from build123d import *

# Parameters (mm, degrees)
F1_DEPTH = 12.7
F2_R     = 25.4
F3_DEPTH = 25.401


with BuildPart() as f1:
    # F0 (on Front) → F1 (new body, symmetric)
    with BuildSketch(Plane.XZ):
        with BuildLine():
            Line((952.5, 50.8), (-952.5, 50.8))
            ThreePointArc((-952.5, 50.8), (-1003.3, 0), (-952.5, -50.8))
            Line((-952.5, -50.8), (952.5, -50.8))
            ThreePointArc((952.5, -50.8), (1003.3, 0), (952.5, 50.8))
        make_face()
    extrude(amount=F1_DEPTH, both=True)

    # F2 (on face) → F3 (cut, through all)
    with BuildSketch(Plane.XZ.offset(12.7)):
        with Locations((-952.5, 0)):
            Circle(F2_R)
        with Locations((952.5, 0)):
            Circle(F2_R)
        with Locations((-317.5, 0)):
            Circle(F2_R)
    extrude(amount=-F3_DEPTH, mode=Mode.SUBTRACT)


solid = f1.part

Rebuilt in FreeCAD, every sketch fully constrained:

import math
import FreeCAD as App
import Part
import Sketcher
Q = App.Units.Quantity

doc = App.newDocument("Part")
body = doc.addObject("PartDesign::Body", "Body")

sketch1 = body.newObject("Sketcher::SketchObject", "Sketch")
sketch1.AttachmentSupport = (doc.getObject("XZ_Plane"), [""])
sketch1.MapMode = "FlatFace"
sketch1.addGeometry(Part.LineSegment(App.Vector(952.5, 50.8, 0), App.Vector(-952.5, 50.8, 0)), False)
sketch1.addGeometry(Part.ArcOfCircle(Part.Circle(App.Vector(-952.5, 0, 0), App.Vector(0, 0, 1), 50.8), math.radians(90), math.radians(270)), False)
sketch1.addGeometry(Part.LineSegment(App.Vector(-952.5, -50.8, 0), App.Vector(952.5, -50.8, 0)), False)
sketch1.addGeometry(Part.ArcOfCircle(Part.Circle(App.Vector(952.5, 0, 0), App.Vector(0, 0, 1), 50.8), math.radians(-90), math.radians(90)), False)
sketch1.addConstraint(Sketcher.Constraint("Tangent", 0, 2, 1, 1))
sketch1.addConstraint(Sketcher.Constraint("Tangent", 1, 2, 2, 1))
sketch1.addConstraint(Sketcher.Constraint("Tangent", 2, 2, 3, 1))
sketch1.addConstraint(Sketcher.Constraint("Tangent", 3, 2, 0, 1))
sketch1.addConstraint(Sketcher.Constraint("Horizontal", 0))
sketch1.addConstraint(Sketcher.Constraint("Horizontal", 2))
sketch1.addConstraint(Sketcher.Constraint("Symmetric", 1, 3, 3, 3, -1, 1))
sketch1.addConstraint(Sketcher.Constraint("Radius", 1, Q("2 in")))
sketch1.addConstraint(Sketcher.Constraint("DistanceX", 0, 2, 0, 1, Q("75 in")))
pad1 = body.newObject("PartDesign::Pad", "Pad")
pad1.Profile = sketch1
pad1.Length = Q("1 in")
pad1.Midplane = True

sketch2 = body.newObject("Sketcher::SketchObject", "Sketch001")
sketch2.AttachmentSupport = (doc.getObject("XZ_Plane"), [""])
sketch2.MapMode = "FlatFace"
sketch2.AttachmentOffset = App.Placement(App.Vector(0, 0, 0.5 * 25.4), App.Rotation())
sketch2.addGeometry(Part.Circle(App.Vector(-952.5, 0, 0), App.Vector(0, 0, 1), 25.4), False)
sketch2.addGeometry(Part.Circle(App.Vector(952.5, 0, 0), App.Vector(0, 0, 1), 25.4), False)
sketch2.addGeometry(Part.Circle(App.Vector(-317.5, 0, 0), App.Vector(0, 0, 1), 25.4), False)
sketch2.addConstraint(Sketcher.Constraint("Equal", 0, 1))
sketch2.addConstraint(Sketcher.Constraint("Equal", 1, 2))
sketch2.addConstraint(Sketcher.Constraint("Symmetric", 0, 3, 1, 3, -1, 1))
sketch2.addConstraint(Sketcher.Constraint("PointOnObject", 0, 3, -1))
sketch2.addConstraint(Sketcher.Constraint("PointOnObject", 2, 3, -1))
sketch2.addConstraint(Sketcher.Constraint("Diameter", 0, Q("2 in")))
sketch2.addConstraint(Sketcher.Constraint("DistanceX", 0, 3, 1, 3, Q("75 in")))
sketch2.addConstraint(Sketcher.Constraint("DistanceX", 0, 3, 2, 3, Q("25 in")))
pocket1 = body.newObject("PartDesign::Pocket", "Pocket")
pocket1.Profile = sketch2
pocket1.Type = "ThroughAll"

doc.recompute()
